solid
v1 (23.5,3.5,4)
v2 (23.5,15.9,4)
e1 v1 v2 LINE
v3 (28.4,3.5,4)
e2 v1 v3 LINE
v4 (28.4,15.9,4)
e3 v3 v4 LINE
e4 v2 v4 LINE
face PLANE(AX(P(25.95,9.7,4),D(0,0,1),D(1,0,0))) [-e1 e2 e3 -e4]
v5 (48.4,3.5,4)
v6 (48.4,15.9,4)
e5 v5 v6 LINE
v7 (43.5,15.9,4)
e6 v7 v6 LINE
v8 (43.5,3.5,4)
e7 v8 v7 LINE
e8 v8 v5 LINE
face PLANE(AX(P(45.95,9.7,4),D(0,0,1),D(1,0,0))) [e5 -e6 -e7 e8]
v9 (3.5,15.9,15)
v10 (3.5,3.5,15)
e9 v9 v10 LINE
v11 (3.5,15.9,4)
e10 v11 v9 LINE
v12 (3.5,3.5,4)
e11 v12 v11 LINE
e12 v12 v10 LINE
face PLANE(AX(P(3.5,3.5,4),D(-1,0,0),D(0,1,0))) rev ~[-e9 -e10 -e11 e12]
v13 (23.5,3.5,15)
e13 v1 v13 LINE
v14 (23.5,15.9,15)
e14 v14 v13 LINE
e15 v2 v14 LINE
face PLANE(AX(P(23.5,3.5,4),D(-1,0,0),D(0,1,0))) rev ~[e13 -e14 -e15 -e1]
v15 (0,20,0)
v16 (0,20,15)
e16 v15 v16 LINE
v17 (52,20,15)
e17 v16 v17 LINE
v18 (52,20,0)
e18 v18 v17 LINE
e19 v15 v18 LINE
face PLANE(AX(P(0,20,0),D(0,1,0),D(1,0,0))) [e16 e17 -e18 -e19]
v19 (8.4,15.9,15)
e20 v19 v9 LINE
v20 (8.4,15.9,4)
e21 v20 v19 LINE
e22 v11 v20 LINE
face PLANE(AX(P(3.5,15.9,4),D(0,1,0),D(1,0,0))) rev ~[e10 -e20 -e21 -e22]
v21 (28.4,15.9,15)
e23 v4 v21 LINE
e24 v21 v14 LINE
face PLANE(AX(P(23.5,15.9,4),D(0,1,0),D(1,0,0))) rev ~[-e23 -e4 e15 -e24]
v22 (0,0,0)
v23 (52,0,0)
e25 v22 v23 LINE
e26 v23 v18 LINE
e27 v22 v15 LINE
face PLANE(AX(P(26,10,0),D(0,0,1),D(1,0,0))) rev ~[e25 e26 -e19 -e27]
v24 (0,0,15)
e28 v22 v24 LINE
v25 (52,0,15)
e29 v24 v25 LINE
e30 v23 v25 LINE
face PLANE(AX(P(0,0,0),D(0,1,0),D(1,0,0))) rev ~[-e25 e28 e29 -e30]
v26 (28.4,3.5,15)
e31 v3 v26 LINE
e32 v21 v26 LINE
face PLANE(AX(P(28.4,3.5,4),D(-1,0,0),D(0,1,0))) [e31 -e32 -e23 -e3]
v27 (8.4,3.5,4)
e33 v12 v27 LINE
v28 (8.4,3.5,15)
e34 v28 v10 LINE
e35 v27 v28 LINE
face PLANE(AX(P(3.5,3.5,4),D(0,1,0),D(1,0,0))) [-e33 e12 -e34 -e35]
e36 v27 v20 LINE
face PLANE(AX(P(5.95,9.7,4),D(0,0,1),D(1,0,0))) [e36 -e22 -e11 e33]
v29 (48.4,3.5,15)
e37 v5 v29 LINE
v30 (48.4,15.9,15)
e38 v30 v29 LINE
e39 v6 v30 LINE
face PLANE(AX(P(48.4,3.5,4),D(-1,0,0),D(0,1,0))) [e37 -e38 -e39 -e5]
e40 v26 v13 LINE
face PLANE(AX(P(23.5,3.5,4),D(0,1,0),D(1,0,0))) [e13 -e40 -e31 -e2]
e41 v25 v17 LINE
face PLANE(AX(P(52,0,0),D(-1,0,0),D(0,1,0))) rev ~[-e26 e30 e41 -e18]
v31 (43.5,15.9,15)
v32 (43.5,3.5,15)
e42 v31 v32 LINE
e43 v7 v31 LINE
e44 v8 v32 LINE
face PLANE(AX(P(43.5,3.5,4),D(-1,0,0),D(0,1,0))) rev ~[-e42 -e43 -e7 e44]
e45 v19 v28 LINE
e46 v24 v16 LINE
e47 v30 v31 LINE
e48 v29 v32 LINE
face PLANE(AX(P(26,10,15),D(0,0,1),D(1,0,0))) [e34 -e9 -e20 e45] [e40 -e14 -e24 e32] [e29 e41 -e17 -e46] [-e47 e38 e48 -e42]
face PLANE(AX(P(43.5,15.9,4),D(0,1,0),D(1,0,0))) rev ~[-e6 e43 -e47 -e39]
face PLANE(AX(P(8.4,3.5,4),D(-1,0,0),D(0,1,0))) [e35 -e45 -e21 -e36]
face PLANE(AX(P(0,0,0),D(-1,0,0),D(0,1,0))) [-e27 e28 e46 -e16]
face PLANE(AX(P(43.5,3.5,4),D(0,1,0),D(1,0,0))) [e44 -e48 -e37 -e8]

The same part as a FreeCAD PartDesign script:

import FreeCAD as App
import Part
import Sketcher

V = App.Vector
Q = App.Units.Quantity


def add_polygon(sketch, points):
    """Adds a closed chain of lines whose ends are joined by coincident constraints."""
    first, n = sketch.GeometryCount, len(points)
    for a, b in zip(points, points[1:] + points[:1]):
        sketch.addGeometry(Part.LineSegment(App.Vector(*a, 0), App.Vector(*b, 0)), False)
    for i in range(n):
        sketch.addConstraint(Sketcher.Constraint("Coincident", first + i, 2, first + (i + 1) % n, 1))

doc = App.newDocument("Part")
body = doc.addObject("PartDesign::Body", "Body")

# Sketch on XY plane
sketch1 = body.newObject("Sketcher::SketchObject", "Sketch")
sketch1.AttachmentSupport = (doc.getObject("XY_Plane"), [""])
sketch1.MapMode = "FlatFace"
sketch1.AttachmentOffset = App.Placement(V(0, 0, 4), App.Rotation())
add_polygon(sketch1, [(43.5, 15.9), (43.5, 3.5), (48.4, 3.5), (48.4, 15.9)])  # lines 0-3
sketch1.addConstraint([
    Sketcher.Constraint("Vertical", 0),
    Sketcher.Constraint("Horizontal", 1),
    Sketcher.Constraint("Vertical", 2),
    Sketcher.Constraint("Horizontal", 3),
    Sketcher.Constraint("DistanceX", 1, 1, 1, 2, Q("4.9 mm")),
    Sketcher.Constraint("DistanceY", 0, 2, 0, 1, Q("12.4 mm")),
    Sketcher.Constraint("DistanceX", -1, 1, 0, 2, Q("43.5 mm")),
    Sketcher.Constraint("DistanceY", -1, 1, 0, 2, Q("3.5 mm")),
])
pad1 = body.newObject("PartDesign::Pad", "Pad")
pad1.Profile = sketch1
pad1.Length = 20
body2 = doc.addObject("PartDesign::Body", "Body001")

# Sketch on XY plane
sketch2 = body2.newObject("Sketcher::SketchObject", "Sketch001")
sketch2.AttachmentSupport = (doc.getObject("XY_Plane001"), [""])
sketch2.MapMode = "FlatFace"
sketch2.AttachmentOffset = App.Placement(V(0, 0, 4), App.Rotation())
add_polygon(sketch2, [(23.5, 15.9), (23.5, 3.5), (28.4, 3.5), (28.4, 15.9)])  # lines 0-3
sketch2.addConstraint([
    Sketcher.Constraint("Vertical", 0),
    Sketcher.Constraint("Horizontal", 1),
    Sketcher.Constraint("Vertical", 2),
    Sketcher.Constraint("Horizontal", 3),
    Sketcher.Constraint("DistanceX", 1, 1, 1, 2, Q("4.9 mm")),
    Sketcher.Constraint("DistanceY", 0, 2, 0, 1, Q("12.4 mm")),
    Sketcher.Constraint("DistanceX", -1, 1, 0, 2, Q("23.5 mm")),
    Sketcher.Constraint("DistanceY", -1, 1, 0, 2, Q("3.5 mm")),
])
pad2 = body2.newObject("PartDesign::Pad", "Pad001")
pad2.Profile = sketch2
pad2.Length = 20
body3 = doc.addObject("PartDesign::Body", "Body002")
body3.AllowCompound = True

# Sketch on XY plane
sketch3 = body3.newObject("Sketcher::SketchObject", "Sketch002")
sketch3.AttachmentSupport = (doc.getObject("XY_Plane002"), [""])
sketch3.MapMode = "FlatFace"
sketch3.AttachmentOffset = App.Placement(V(0, 0, 4), App.Rotation())
add_polygon(sketch3, [(3.5, 15.9), (3.5, 3.5), (8.4, 3.5), (8.4, 15.9)])  # lines 0-3
sketch3.addConstraint([
    Sketcher.Constraint("Vertical", 0),
    Sketcher.Constraint("Horizontal", 1),
    Sketcher.Constraint("Vertical", 2),
    Sketcher.Constraint("Horizontal", 3),
    Sketcher.Constraint("DistanceX", 1, 1, 1, 2, Q("4.9 mm")),
    Sketcher.Constraint("DistanceY", 0, 2, 0, 1, Q("12.4 mm")),
    Sketcher.Constraint("DistanceX", -1, 1, 0, 2, Q("3.5 mm")),
    Sketcher.Constraint("DistanceY", -1, 1, 0, 2, Q("3.5 mm")),
])
pad3 = body3.newObject("PartDesign::Pad", "Pad002")
pad3.Profile = sketch3
pad3.Length = 20
doc.recompute()

boolean = body3.newObject("PartDesign::Boolean", "Boolean")
boolean.Type = "Fuse"
boolean.addObjects([body])
doc.recompute()

boolean2 = body3.newObject("PartDesign::Boolean", "Boolean001")
boolean2.Type = "Fuse"
boolean2.addObjects([body2])
body4 = doc.addObject("PartDesign::Body", "Body003")

# Sketch on XY plane
sketch4 = body4.newObject("Sketcher::SketchObject", "Sketch003")
sketch4.AttachmentSupport = (doc.getObject("XY_Plane003"), [""])
sketch4.MapMode = "FlatFace"
add_polygon(sketch4, [(0, 20), (0, 0), (52, 0), (52, 20)])  # lines 0-3
sketch4.addConstraint([
    Sketcher.Constraint("Vertical", 0),
    Sketcher.Constraint("Horizontal", 1),
    Sketcher.Constraint("Vertical", 2),
    Sketcher.Constraint("Horizontal", 3),
    Sketcher.Constraint("Coincident", 0, 2, -1, 1),
    Sketcher.Constraint("DistanceX", 1, 1, 1, 2, Q("52 mm")),
    Sketcher.Constraint("DistanceY", 0, 2, 0, 1, Q("20 mm")),
])
pad4 = body4.newObject("PartDesign::Pad", "Pad003")
pad4.Profile = sketch4
pad4.Length = 15
doc.recompute()

boolean3 = body4.newObject("PartDesign::Boolean", "Boolean002")
boolean3.Type = "Cut"
boolean3.addObjects([body3])

doc.recompute()
